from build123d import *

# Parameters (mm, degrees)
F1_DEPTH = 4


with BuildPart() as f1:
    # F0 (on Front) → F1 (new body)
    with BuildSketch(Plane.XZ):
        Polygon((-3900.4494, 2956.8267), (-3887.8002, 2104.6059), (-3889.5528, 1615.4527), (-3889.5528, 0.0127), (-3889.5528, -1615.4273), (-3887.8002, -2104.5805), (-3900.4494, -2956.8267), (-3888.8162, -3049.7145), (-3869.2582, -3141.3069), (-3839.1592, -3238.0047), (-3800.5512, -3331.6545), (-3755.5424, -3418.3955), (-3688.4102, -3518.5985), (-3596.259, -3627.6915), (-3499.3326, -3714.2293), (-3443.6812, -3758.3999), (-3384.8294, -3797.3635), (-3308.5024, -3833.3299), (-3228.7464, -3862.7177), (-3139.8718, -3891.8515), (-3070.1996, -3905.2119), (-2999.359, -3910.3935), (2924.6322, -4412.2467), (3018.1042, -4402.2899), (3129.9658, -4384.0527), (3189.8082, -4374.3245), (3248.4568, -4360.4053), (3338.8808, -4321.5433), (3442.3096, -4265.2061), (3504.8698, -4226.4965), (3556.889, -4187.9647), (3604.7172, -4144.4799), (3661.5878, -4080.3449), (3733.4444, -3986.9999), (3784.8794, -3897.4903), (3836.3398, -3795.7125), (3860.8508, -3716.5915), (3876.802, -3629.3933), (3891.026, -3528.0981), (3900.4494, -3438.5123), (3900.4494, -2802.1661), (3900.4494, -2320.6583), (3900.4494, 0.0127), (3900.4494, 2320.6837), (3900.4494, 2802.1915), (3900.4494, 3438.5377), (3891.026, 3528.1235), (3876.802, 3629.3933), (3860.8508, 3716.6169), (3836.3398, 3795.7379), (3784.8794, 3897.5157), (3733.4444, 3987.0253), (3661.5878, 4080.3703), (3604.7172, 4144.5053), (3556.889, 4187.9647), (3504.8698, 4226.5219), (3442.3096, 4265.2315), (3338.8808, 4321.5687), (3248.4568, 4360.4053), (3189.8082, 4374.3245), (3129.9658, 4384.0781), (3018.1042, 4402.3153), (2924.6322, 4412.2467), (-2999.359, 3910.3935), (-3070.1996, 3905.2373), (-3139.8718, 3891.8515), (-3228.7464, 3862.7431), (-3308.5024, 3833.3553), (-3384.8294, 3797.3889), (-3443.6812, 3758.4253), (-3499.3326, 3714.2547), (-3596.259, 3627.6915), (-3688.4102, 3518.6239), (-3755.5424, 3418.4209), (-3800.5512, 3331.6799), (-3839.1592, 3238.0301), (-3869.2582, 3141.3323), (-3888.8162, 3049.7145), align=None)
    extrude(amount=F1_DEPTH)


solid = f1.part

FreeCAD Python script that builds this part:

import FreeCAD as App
import Part
import Sketcher
from FreeCAD import Vector
Q = App.Units.Quantity


def add_polygon(sketch, points):
    """Adds a closed chain of lines whose ends are joined by coincident constraints."""
    first, n = sketch.GeometryCount, len(points)
    for a, b in zip(points, points[1:] + points[:1]):
        sketch.addGeometry(Part.LineSegment(App.Vector(*a, 0), App.Vector(*b, 0)), False)
    for i in range(n):
        sketch.addConstraint(Sketcher.Constraint("Coincident", first + i, 2, first + (i + 1) % n, 1))

doc = App.newDocument("Part")
params = doc.addObject("Spreadsheet::Sheet", "Params")
for row, (alias, value) in enumerate([
    ("sketch1_height", "127.2 in"),
    ("sketch1_height2", "270.75 in"),
    ("pad1_length", "4 mm"),
], start=1):
    params.set(f"A{row}", alias)
    params.set(f"B{row}", "=" + value)
    params.setAlias(f"B{row}", alias)

body = doc.addObject("PartDesign::Body", "Body")

# Sketch on XZ plane
sketch1 = body.newObject("Sketcher::SketchObject", "Sketch")
sketch1.AttachmentSupport = (doc.getObject("XZ_Plane"), [""])
sketch1.MapMode = "FlatFace"
add_polygon(sketch1, [(-3900, 2957), (-3888, 2105), (-3890, 1615), (-3890, -1615), (-3888, -2105), (-3900, -2957), (-3889, -3050), (-3869, -3141), (-3839, -3238), (-3801, -3332), (-3756, -3418), (-3688, -3519), (-3596, -3628), (-3499, -3714), (-3444, -3758), (-3385, -3797), (-3309, -3833), (-3229, -3863), (-3140, -3892), (-3070, -3905), (-2999, -3910), (2925, -4412), (3018, -4402), (3130, -4384), (3190, -4374), (3248, -4360), (3339, -4322), (3442, -4265), (3505, -4226), (3557, -4188), (3605, -4144), (3662, -4080), (3733, -3987), (3785, -3897), (3836, -3796), (3861, -3717), (3877, -3629), (3891, -3528), (3900, -3439), (3900, 3439), (3891, 3528), (3877, 3629), (3861, 3717), (3836, 3796), (3785, 3898), (3733, 3987), (3662, 4080), (3605, 4145), (3557, 4188), (3505, 4227), (3442, 4265), (3339, 4322), (3248, 4360), (3190, 4374), (3130, 4384), (3018, 4402), (2925, 4412), (-2999, 3910), (-3070, 3905), (-3140, 3892), (-3229, 3863), (-3309, 3833), (-3385, 3797), (-3444, 3758), (-3499, 3714), (-3596, 3628), (-3688, 3519), (-3756, 3418), (-3801, 3332), (-3839, 3238), (-3869, 3141), (-3889, 3050)])  # lines 0-71
sketch1.addConstraint([
    Sketcher.Constraint("Vertical", 2),
    Sketcher.Constraint("Vertical", 38),
    Sketcher.Constraint("Symmetric", 35, 2, 40, 2, -1),
    Sketcher.Constraint("Symmetric", 28, 2, 47, 2, -1),
    Sketcher.Constraint("Symmetric", 24, 2, 51, 2, -1),
    Sketcher.Constraint("Symmetric", 23, 2, 52, 2, -1),
    Sketcher.Constraint("Symmetric", 20, 2, 55, 2, -1),
    Sketcher.Constraint("Symmetric", 19, 2, 56, 2, -1),
    Sketcher.Constraint("Symmetric", 17, 2, 58, 2, -1),
    Sketcher.Constraint("Symmetric", 11, 2, 64, 2, -1),
    Sketcher.Constraint("Symmetric", 5, 2, 70, 2, -1),
    Sketcher.Constraint("Symmetric", 4, 2, 71, 2, -1),
    Sketcher.Constraint("Vertical", 0, 2, 3, 2),
    Sketcher.Constraint("Vertical", 36, 2, 39, 2),
    Sketcher.Constraint("Vertical", 34, 2, 41, 2),
    Sketcher.Constraint("Vertical", 33, 2, 42, 2),
    Sketcher.Constraint("Vertical", 32, 2, 43, 2),
    Sketcher.Constraint("Vertical", 31, 2, 44, 2),
    Sketcher.Constraint("Vertical", 30, 2, 45, 2),
    Sketcher.Constraint("Vertical", 29, 2, 46, 2),
    Sketcher.Constraint("Vertical", 27, 2, 48, 2),
    Sketcher.Constraint("Vertical", 26, 2, 49, 2),
    Sketcher.Constraint("Vertical", 25, 2, 50, 2),
    Sketcher.Constraint("Vertical", 22, 2, 53, 2),
    Sketcher.Constraint("Vertical", 21, 2, 54, 2),
    Sketcher.Constraint("Vertical", 18, 2, 57, 2),
    Sketcher.Constraint("Vertical", 16, 2, 59, 2),
    Sketcher.Constraint("Vertical", 15, 2, 60, 2),
    Sketcher.Constraint("Vertical", 14, 2, 61, 2),
    Sketcher.Constraint("Vertical", 13, 2, 62, 2),
    Sketcher.Constraint("Vertical", 12, 2, 63, 2),
    Sketcher.Constraint("Vertical", 10, 2, 65, 2),
    Sketcher.Constraint("Vertical", 9, 2, 66, 2),
    Sketcher.Constraint("Vertical", 8, 2, 67, 2),
    Sketcher.Constraint("Vertical", 7, 2, 68, 2),
    Sketcher.Constraint("Vertical", 6, 2, 69, 2),
    Sketcher.Constraint("Equal", 1, 3),
    Sketcher.Constraint("Equal", 37, 39),
    Sketcher.Constraint("Equal", 34, 42),
    Sketcher.Constraint("Equal", 33, 43),
    Sketcher.Constraint("Equal", 32, 44),
    Sketcher.Constraint("Equal", 31, 45),
    Sketcher.Constraint("Equal", 30, 46),
    Sketcher.Constraint("Equal", 27, 49),
    Sketcher.Constraint("Equal", 26, 50),
    Sketcher.Constraint("Equal", 22, 54),
    Sketcher.Constraint("Equal", 16, 60),
    Sketcher.Constraint("Equal", 15, 61),
    Sketcher.Constraint("Equal", 14, 62),
    Sketcher.Constraint("Equal", 13, 63),
    Sketcher.Constraint("Equal", 10, 66),
    Sketcher.Constraint("Equal", 9, 67),
    Sketcher.Constraint("Equal", 8, 68),
    Sketcher.Constraint("Equal", 7, 69),
    Sketcher.Constraint("DistanceY", 2, 2, 2, 1, Q("127.2 in")),
    Sketcher.Constraint("DistanceY", 38, 1, 38, 2, Q("270.75 in")),
    Sketcher.Constraint("DistanceX", -1, 1, 35, 2, Q("152.63 in")),
    Sketcher.Constraint("DistanceX", -1, 1, 36, 2, Q("153.19 in")),
    Sketcher.Constraint("DistanceX", 0, 2, -1, 1, Q("153.063 in")),
    Sketcher.Constraint("DistanceX", 1, 2, -1, 1, Q("153.132 in")),
    Sketcher.Constraint("DistanceX", 4, 2, -1, 1, Q("153.561 in")),
    Sketcher.Constraint("DistanceX", 5, 2, -1, 1, Q("153.103 in")),
    Sketcher.Constraint("DistanceX", 6, 2, -1, 1, Q("152.333 in")),
    Sketcher.Constraint("DistanceX", 7, 2, -1, 1, Q("151.148 in")),
    Sketcher.Constraint("DistanceX", 8, 2, -1, 1, Q("149.628 in")),
    Sketcher.Constraint("DistanceX", 9, 2, -1, 1, Q("147.856 in")),
    Sketcher.Constraint("DistanceX", 10, 2, -1, 1, Q("145.213 in")),
    Sketcher.Constraint("DistanceX", 11, 2, -1, 1, Q("141.585 in")),
    Sketcher.Constraint("DistanceX", 12, 2, -1, 1, Q("137.769 in")),
    Sketcher.Constraint("DistanceX", 13, 2, -1, 1, Q("135.578 in")),
    Sketcher.Constraint("DistanceX", 14, 2, -1, 1, Q("133.261 in")),
    Sketcher.Constraint("DistanceX", 15, 2, -1, 1, Q("130.256 in")),
    Sketcher.Constraint("DistanceX", 16, 2, -1, 1, Q("127.116 in")),
    Sketcher.Constraint("DistanceX", 17, 2, -1, 1, Q("123.617 in")),
    Sketcher.Constraint("DistanceX", 18, 2, -1, 1, Q("120.874 in")),
    Sketcher.Constraint("DistanceX", 19, 2, -1, 1, Q("118.085 in")),
    Sketcher.Constraint("DistanceX", -1, 1, 20, 2, Q("115.143 in")),
    Sketcher.Constraint("DistanceX", -1, 1, 21, 2, Q("118.823 in")),
    Sketcher.Constraint("DistanceX", -1, 1, 22, 2, Q("123.227 in")),
    Sketcher.Constraint("DistanceX", -1, 1, 23, 2, Q("125.583 in")),
    Sketcher.Constraint("DistanceX", -1, 1, 24, 2, Q("127.892 in")),
    Sketcher.Constraint("DistanceX", -1, 1, 25, 2, Q("131.452 in")),
    Sketcher.Constraint("DistanceX", -1, 1, 26, 2, Q("135.524 in")),
    Sketcher.Constraint("DistanceX", -1, 1, 27, 2, Q("137.987 in")),
    Sketcher.Constraint("DistanceX", -1, 1, 28, 2, Q("140.035 in")),
    Sketcher.Constraint("DistanceX", -1, 1, 29, 2, Q("141.918 in")),
    Sketcher.Constraint("DistanceX", -1, 1, 30, 2, Q("144.157 in")),
    Sketcher.Constraint("DistanceX", -1, 1, 31, 2, Q("146.986 in")),
    Sketcher.Constraint("DistanceX", -1, 1, 32, 2, Q("149.011 in")),
    Sketcher.Constraint("DistanceX", -1, 1, 33, 2, Q("151.037 in")),
    Sketcher.Constraint("DistanceY", 33, 2, -1, 1, Q("149.4375 in")),
    Sketcher.Constraint("DistanceX", -1, 1, 34, 2, Q("152.002 in")),
    Sketcher.Constraint("DistanceX", -1, 1, 37, 2, Q("153.561 in")),
    Sketcher.Constraint("DistanceY", -1, 1, 0, 2, Q("82.8585 in")),
    Sketcher.Constraint("DistanceY", -1, 1, 1, 2, Q("63.6005 in")),
    Sketcher.Constraint("DistanceY", 4, 2, -1, 1, Q("116.4105 in")),
    Sketcher.Constraint("DistanceY", 5, 2, -1, 1, Q("120.0675 in")),
    Sketcher.Constraint("DistanceY", 6, 2, -1, 1, Q("123.6735 in")),
    Sketcher.Constraint("DistanceY", 7, 2, -1, 1, Q("127.4805 in")),
    Sketcher.Constraint("DistanceY", 8, 2, -1, 1, Q("131.1675 in")),
    Sketcher.Constraint("DistanceY", 9, 2, -1, 1, Q("134.5825 in")),
    Sketcher.Constraint("DistanceY", 10, 2, -1, 1, Q("138.5275 in")),
    Sketcher.Constraint("DistanceY", 11, 2, -1, 1, Q("142.8225 in")),
    Sketcher.Constraint("DistanceY", 12, 2, -1, 1, Q("146.2295 in")),
    Sketcher.Constraint("DistanceY", 13, 2, -1, 1, Q("147.9685 in")),
    Sketcher.Constraint("DistanceY", 14, 2, -1, 1, Q("149.5025 in")),
    Sketcher.Constraint("DistanceY", 15, 2, -1, 1, Q("150.9185 in")),
    Sketcher.Constraint("DistanceY", 16, 2, -1, 1, Q("152.0755 in")),
    Sketcher.Constraint("DistanceY", 17, 2, -1, 1, Q("153.2225 in")),
    Sketcher.Constraint("DistanceY", 18, 2, -1, 1, Q("153.7485 in")),
    Sketcher.Constraint("DistanceY", 19, 2, -1, 1, Q("153.9525 in")),
    Sketcher.Constraint("DistanceY", 20, 2, -1, 1, Q("173.7105 in")),
    Sketcher.Constraint("DistanceY", 21, 2, -1, 1, Q("173.3185 in")),
    Sketcher.Constraint("DistanceY", 22, 2, -1, 1, Q("172.6005 in")),
    Sketcher.Constraint("DistanceY", 23, 2, -1, 1, Q("172.2175 in")),
    Sketcher.Constraint("DistanceY", 24, 2, -1, 1, Q("171.6695 in")),
    Sketcher.Constraint("DistanceY", 25, 2, -1, 1, Q("170.1395 in")),
    Sketcher.Constraint("DistanceY", 26, 2, -1, 1, Q("167.9215 in")),
    Sketcher.Constraint("DistanceY", 27, 2, -1, 1, Q("166.3975 in")),
    Sketcher.Constraint("DistanceY", 28, 2, -1, 1, Q("164.8805 in")),
    Sketcher.Constraint("DistanceY", 29, 2, -1, 1, Q("163.1685 in")),
    Sketcher.Constraint("DistanceY", 30, 2, -1, 1, Q("160.6435 in")),
    Sketcher.Constraint("DistanceY", 31, 2, -1, 1, Q("156.9685 in")),
    Sketcher.Constraint("DistanceY", 32, 2, -1, 1, Q("153.4445 in")),
    Sketcher.Constraint("DistanceY", 34, 2, -1, 1, Q("146.3225 in")),
    Sketcher.Constraint("DistanceY", 35, 2, -1, 1, Q("142.8895 in")),
    Sketcher.Constraint("DistanceY", 36, 2, -1, 1, Q("138.9015 in")),
    Sketcher.Constraint("DistanceY", 37, 2, -1, 1, Q("135.3745 in")),
    Sketcher.Constraint("DistanceY", -1, 1, 41, 2, Q("146.3235 in")),
    Sketcher.Constraint("DistanceY", -1, 1, 48, 2, Q("166.3985 in")),
    Sketcher.Constraint("DistanceY", -1, 1, 53, 2, Q("172.6015 in")),
    Sketcher.Constraint("DistanceY", -1, 1, 57, 2, Q("153.7495 in")),
    Sketcher.Constraint("DistanceY", -1, 1, 59, 2, Q("152.0765 in")),
    Sketcher.Constraint("DistanceY", -1, 1, 65, 2, Q("138.5285 in")),
])
sketch1.setExpression("Constraints[126]", "Params.sketch1_height")
sketch1.setExpression("Constraints[127]", "Params.sketch1_height2")
pad1 = body.newObject("PartDesign::Pad", "Pad")
pad1.Profile = sketch1
pad1.setExpression("Length", "Params.pad1_length")

doc.recompute()
